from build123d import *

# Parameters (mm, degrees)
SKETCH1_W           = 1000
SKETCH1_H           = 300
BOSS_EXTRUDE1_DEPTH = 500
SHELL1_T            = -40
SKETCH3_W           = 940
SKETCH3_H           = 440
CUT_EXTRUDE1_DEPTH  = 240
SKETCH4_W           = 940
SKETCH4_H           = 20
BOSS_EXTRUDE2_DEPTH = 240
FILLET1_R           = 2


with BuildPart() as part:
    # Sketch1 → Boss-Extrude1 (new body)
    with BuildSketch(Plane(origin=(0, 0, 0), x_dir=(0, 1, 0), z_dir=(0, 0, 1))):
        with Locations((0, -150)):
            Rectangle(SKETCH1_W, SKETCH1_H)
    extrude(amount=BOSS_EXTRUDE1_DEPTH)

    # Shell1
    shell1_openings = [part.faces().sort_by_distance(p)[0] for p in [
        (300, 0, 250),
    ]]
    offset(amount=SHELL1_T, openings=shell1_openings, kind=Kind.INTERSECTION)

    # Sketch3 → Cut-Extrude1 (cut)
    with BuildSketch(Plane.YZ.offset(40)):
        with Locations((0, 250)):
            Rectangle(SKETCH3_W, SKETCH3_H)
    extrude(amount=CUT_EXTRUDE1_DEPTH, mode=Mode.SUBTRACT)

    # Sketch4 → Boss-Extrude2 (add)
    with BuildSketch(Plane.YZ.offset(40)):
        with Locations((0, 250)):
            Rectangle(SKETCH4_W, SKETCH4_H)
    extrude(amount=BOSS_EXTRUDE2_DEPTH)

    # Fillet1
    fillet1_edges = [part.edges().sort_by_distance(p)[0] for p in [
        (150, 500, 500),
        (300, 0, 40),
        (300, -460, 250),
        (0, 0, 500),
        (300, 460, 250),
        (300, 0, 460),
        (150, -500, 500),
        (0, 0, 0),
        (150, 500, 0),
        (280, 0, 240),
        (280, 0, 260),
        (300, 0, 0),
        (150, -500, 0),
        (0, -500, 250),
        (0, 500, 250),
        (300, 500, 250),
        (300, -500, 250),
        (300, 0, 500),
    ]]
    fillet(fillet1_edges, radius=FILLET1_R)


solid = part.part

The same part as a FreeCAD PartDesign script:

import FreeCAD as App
import Part
import Sketcher
Q = App.Units.Quantity


def edges_at(feature, points):
    """Names of the edges that pass closest to the given points."""
    edges = feature.Shape.Edges
    near = lambda p: min(range(len(edges)), key=lambda i: edges[i].distToShape(Part.Vertex(*p))[0])
    return sorted({f"Edge{near(p) + 1}" for p in points})


def faces_at(feature, points):
    """Names of the faces that lie closest to the given points."""
    faces = feature.Shape.Faces
    near = lambda p: min(range(len(faces)), key=lambda i: faces[i].distToShape(Part.Vertex(*p))[0])
    return sorted({f"Face{near(p) + 1}" for p in points})

doc = App.newDocument("Part")
params = doc.addObject("Spreadsheet::Sheet", "Params")
for row, (alias, value) in enumerate([
    ("sketch1_width", "300 mm"),
    ("sketch1_height", "1000 mm"),
    ("pad1_length", "500 mm"),
    ("thickness_wall", "40 mm"),
    ("sketch2_width", "940 mm"),
    ("sketch2_height", "440 mm"),
    ("pocket1_length", "240 mm"),
    ("sketch3_width", "940 mm"),
    ("sketch3_height", "20 mm"),
    ("pad2_length", "240 mm"),
    ("fillet_radius", "2 mm"),
], start=1):
    params.set(f"A{row}", alias)
    params.set(f"B{row}", "=" + value)
    params.setAlias(f"B{row}", alias)

body = doc.addObject("PartDesign::Body", "Body")

# Sketch on XY plane
sketch1 = body.newObject("Sketcher::SketchObject", "Sketch")
sketch1.AttachmentSupport = (doc.getObject("XY_Plane"), [""])
sketch1.MapMode = "FlatFace"
sketch1.addGeometry([
    Part.LineSegment(App.Vector(0, -500, 0), App.Vector(300, -500, 0)),
    Part.LineSegment(App.Vector(300, -500, 0), App.Vector(300, 500, 0)),
    Part.LineSegment(App.Vector(300, 500, 0), App.Vector(0, 500, 0)),
    Part.LineSegment(App.Vector(0, 500, 0), App.Vector(0, -500, 0)),
], False)
sketch1.addConstraint([
    Sketcher.Constraint("Coincident", 0, 2, 1, 1),
    Sketcher.Constraint("Coincident", 1, 2, 2, 1),
    Sketcher.Constraint("Coincident", 2, 2, 3, 1),
    Sketcher.Constraint("Coincident", 3, 2, 0, 1),
    Sketcher.Constraint("Horizontal", 0),
    Sketcher.Constraint("Vertical", 1),
    Sketcher.Constraint("Horizontal", 2),
    Sketcher.Constraint("Vertical", 3),
    Sketcher.Constraint("Symmetric", 2, 2, 3, 2, -1, 1),
    Sketcher.Constraint("DistanceX", 0, 1, 0, 2, Q("300 mm")),
    Sketcher.Constraint("DistanceY", 1, 1, 1, 2, Q("1000 mm")),
])
sketch1.setExpression("Constraints[9]", "Params.sketch1_width")
sketch1.setExpression("Constraints[10]", "Params.sketch1_height")
pad1 = body.newObject("PartDesign::Pad", "Pad")
pad1.Profile = sketch1
pad1.setExpression("Length", "Params.pad1_length")
doc.recompute()

thickness = body.newObject("PartDesign::Thickness", "Thickness")
thickness.Base = (pad1, faces_at(pad1, [(300, 0, 250)]))
thickness.setExpression("Value", "Params.thickness_wall")
thickness.Reversed = True
thickness.Join = "Intersection"

# Sketch on YZ plane
sketch2 = body.newObject("Sketcher::SketchObject", "Sketch001")
sketch2.AttachmentSupport = (doc.getObject("YZ_Plane"), [""])
sketch2.MapMode = "FlatFace"
sketch2.AttachmentOffset = App.Placement(App.Vector(0, 0, 40), App.Rotation())
sketch2.addGeometry([
    Part.LineSegment(App.Vector(-470, 470, 0), App.Vector(-470, 30, 0)),
    Part.LineSegment(App.Vector(-470, 30, 0), App.Vector(470, 30, 0)),
    Part.LineSegment(App.Vector(470, 30, 0), App.Vector(470, 470, 0)),
    Part.LineSegment(App.Vector(470, 470, 0), App.Vector(-470, 470, 0)),
], False)
sketch2.addConstraint([
    Sketcher.Constraint("Coincident", 0, 2, 1, 1),
    Sketcher.Constraint("Coincident", 1, 2, 2, 1),
    Sketcher.Constraint("Coincident", 2, 2, 3, 1),
    Sketcher.Constraint("Coincident", 3, 2, 0, 1),
    Sketcher.Constraint("Vertical", 0),
    Sketcher.Constraint("Horizontal", 1),
    Sketcher.Constraint("Vertical", 2),
    Sketcher.Constraint("Horizontal", 3),
    Sketcher.Constraint("DistanceX", 1, 1, 1, 2, Q("940 mm")),
    Sketcher.Constraint("DistanceY", 0, 2, 0, 1, Q("440 mm")),
    Sketcher.Constraint("DistanceX", 0, 2, -1, 1, Q("470 mm")),
    Sketcher.Constraint("DistanceY", -1, 1, 0, 2, Q("30 mm")),
])
sketch2.setExpression("Constraints[8]", "Params.sketch2_width")
sketch2.setExpression("Constraints[9]", "Params.sketch2_height")
pocket1 = body.newObject("PartDesign::Pocket", "Pocket")
pocket1.Profile = sketch2
pocket1.setExpression("Length", "Params.pocket1_length")
pocket1.Reversed = True

# Sketch on YZ plane
sketch3 = body.newObject("Sketcher::SketchObject", "Sketch002")
sketch3.AttachmentSupport = (doc.getObject("YZ_Plane"), [""])
sketch3.MapMode = "FlatFace"
sketch3.AttachmentOffset = App.Placement(App.Vector(0, 0, 40), App.Rotation())
sketch3.addGeometry([
    Part.LineSegment(App.Vector(-470, 260, 0), App.Vector(-470, 240, 0)),
    Part.LineSegment(App.Vector(-470, 240, 0), App.Vector(470, 240, 0)),
    Part.LineSegment(App.Vector(470, 240, 0), App.Vector(470, 260, 0)),
    Part.LineSegment(App.Vector(470, 260, 0), App.Vector(-470, 260, 0)),
], False)
sketch3.addConstraint([
    Sketcher.Constraint("Coincident", 0, 2, 1, 1),
    Sketcher.Constraint("Coincident", 1, 2, 2, 1),
    Sketcher.Constraint("Coincident", 2, 2, 3, 1),
    Sketcher.Constraint("Coincident", 3, 2, 0, 1),
    Sketcher.Constraint("Vertical", 0),
    Sketcher.Constraint("Horizontal", 1),
    Sketcher.Constraint("Vertical", 2),
    Sketcher.Constraint("Horizontal", 3),
    Sketcher.Constraint("DistanceX", 1, 1, 1, 2, Q("940 mm")),
    Sketcher.Constraint("DistanceY", 0, 2, 0, 1, Q("20 mm")),
    Sketcher.Constraint("DistanceX", 0, 2, -1, 1, Q("470 mm")),
    Sketcher.Constraint("DistanceY", -1, 1, 0, 2, Q("240 mm")),
])
sketch3.setExpression("Constraints[8]", "Params.sketch3_width")
sketch3.setExpression("Constraints[9]", "Params.sketch3_height")
pad2 = body.newObject("PartDesign::Pad", "Pad001")
pad2.Profile = sketch3
pad2.setExpression("Length", "Params.pad2_length")
doc.recompute()

fillet = body.newObject("PartDesign::Fillet", "Fillet")
fillet.Base = (pad2, edges_at(pad2, [
    (150, 500, 500),
    (300, 0, 40),
    (300, -460, 250),
    (0, 0, 500),
    (300, 460, 250),
    (300, 0, 460),
    (150, -500, 500),
    (0, 0, 0),
    (150, 500, 0),
    (280, 0, 240),
    (280, 0, 260),
    (300, 0, 0),
    (150, -500, 0),
    (0, -500, 250),
    (0, 500, 250),
    (300, 500, 250),
    (300, -500, 250),
    (300, 0, 500),
]))
fillet.setExpression("Radius", "Params.fillet_radius")

doc.recompute()
